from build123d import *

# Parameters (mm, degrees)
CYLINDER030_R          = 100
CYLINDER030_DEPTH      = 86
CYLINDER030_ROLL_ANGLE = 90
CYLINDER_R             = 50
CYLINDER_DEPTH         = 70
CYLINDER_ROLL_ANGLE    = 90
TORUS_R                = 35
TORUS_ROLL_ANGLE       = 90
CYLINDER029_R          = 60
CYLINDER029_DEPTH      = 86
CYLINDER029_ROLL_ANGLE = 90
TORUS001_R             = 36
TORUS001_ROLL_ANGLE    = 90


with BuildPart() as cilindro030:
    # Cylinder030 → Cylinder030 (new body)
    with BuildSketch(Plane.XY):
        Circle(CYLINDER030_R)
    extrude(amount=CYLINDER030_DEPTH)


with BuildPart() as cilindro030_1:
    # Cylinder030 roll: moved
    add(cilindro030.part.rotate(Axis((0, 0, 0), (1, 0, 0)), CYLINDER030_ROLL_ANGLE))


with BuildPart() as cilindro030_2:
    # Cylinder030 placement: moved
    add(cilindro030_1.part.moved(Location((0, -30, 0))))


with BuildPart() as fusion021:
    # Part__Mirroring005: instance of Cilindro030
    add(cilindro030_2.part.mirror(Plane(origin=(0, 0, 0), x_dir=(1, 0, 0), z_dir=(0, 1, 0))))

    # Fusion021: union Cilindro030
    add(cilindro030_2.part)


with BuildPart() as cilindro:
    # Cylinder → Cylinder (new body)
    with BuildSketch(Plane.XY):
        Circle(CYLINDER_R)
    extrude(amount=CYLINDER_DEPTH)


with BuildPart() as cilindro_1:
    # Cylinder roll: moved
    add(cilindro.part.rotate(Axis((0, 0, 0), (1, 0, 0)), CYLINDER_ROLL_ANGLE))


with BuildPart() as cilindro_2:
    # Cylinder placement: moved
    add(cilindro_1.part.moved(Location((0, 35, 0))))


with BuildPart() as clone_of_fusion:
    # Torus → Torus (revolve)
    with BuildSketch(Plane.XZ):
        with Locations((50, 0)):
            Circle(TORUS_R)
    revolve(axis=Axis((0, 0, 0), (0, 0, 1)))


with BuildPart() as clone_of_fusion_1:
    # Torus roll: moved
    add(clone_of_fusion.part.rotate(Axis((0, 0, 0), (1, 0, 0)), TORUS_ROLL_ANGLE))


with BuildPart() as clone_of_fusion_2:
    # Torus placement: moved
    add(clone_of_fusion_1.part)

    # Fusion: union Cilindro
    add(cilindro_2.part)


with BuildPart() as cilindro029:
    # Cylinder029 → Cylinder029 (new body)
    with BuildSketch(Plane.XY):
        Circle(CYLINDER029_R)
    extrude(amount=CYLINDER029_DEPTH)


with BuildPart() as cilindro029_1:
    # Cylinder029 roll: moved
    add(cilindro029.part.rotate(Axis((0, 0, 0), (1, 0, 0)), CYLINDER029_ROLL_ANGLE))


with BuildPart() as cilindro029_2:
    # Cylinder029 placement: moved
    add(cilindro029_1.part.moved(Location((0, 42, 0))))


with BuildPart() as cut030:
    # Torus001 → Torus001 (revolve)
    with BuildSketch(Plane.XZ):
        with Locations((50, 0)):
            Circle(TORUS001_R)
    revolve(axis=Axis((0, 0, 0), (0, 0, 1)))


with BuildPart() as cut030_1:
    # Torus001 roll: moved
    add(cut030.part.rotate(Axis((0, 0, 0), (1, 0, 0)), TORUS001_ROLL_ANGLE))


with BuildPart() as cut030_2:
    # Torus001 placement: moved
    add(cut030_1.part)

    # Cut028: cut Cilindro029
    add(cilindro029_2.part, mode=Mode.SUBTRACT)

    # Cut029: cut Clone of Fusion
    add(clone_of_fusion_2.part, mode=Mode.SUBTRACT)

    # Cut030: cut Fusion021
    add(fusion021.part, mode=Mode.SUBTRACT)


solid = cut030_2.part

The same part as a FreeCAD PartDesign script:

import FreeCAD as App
import Part
import Sketcher

doc = App.newDocument("Part")
params = doc.addObject("Spreadsheet::Sheet", "Params")
for row, (alias, value) in enumerate([
    ("sketch1_diameter", "200 mm"),
    ("pad1_length", "86 mm"),
    ("sketch2_diameter", "100 mm"),
    ("pad2_length", "70 mm"),
    ("sketch3_diameter", "70 mm"),
    ("revolution_angle", "360 deg"),
    ("sketch4_diameter", "120 mm"),
    ("pad3_length", "86 mm"),
    ("sketch5_diameter", "72 mm"),
    ("revolution2_angle", "360 deg"),
], start=1):
    params.set(f"A{row}", alias)
    params.set(f"B{row}", "=" + value)
    params.setAlias(f"B{row}", alias)

body = doc.addObject("PartDesign::Body", "Body")

# Sketch on XY plane
sketch1 = body.newObject("Sketcher::SketchObject", "Sketch")
sketch1.AttachmentSupport = (doc.getObject("XY_Plane"), [""])
sketch1.MapMode = "FlatFace"
sketch1.addGeometry(Part.Circle(App.Vector(0, 0, 0), App.Vector(0, 0, 1), 100), False)
sketch1.addConstraint([
    Sketcher.Constraint("Coincident", 0, 3, -1, 1),
    Sketcher.Constraint("Diameter", 0, 200.0),
])
sketch1.setExpression("Constraints[1]", "Params.sketch1_diameter")
pad1 = body.newObject("PartDesign::Pad", "Pad")
pad1.Profile = sketch1
pad1.setExpression("Length", "Params.pad1_length")
body2 = doc.addObject("PartDesign::Body", "Body001")
doc.recompute()

body.Placement = App.Placement(App.Vector(0, 0, 0), App.Rotation(App.Vector(1, 0, 0), 90))
boolean = body2.newObject("PartDesign::Boolean", "Boolean")
boolean.Type = "Fuse"
boolean.addObjects([body])
body3 = doc.addObject("PartDesign::Body", "Body002")
doc.recompute()

body2.Placement = App.Placement(App.Vector(0, -30, 0), App.Rotation(App.Vector(0, 0, 1), 0))
boolean2 = body3.newObject("PartDesign::Boolean", "Boolean001")
boolean2.Type = "Fuse"
boolean2.addObjects([body2])
body4 = doc.addObject("PartDesign::Body", "Body003")
body4.AllowCompound = True
doc.recompute()

mirroring = doc.addObject("Part::Mirroring", "Mirroring")
mirroring.Source = body3
mirroring.Base = App.Vector(0, 0, 0)
mirroring.Normal = App.Vector(0, 1, 0)
body4.BaseFeature = mirroring
doc.recompute()

boolean3 = body4.newObject("PartDesign::Boolean", "Boolean002")
boolean3.Type = "Fuse"
boolean3.addObjects([body3])
body5 = doc.addObject("PartDesign::Body", "Body004")

# Sketch on XY plane
sketch2 = body5.newObject("Sketcher::SketchObject", "Sketch001")
sketch2.AttachmentSupport = (doc.getObject("XY_Plane004"), [""])
sketch2.MapMode = "FlatFace"
sketch2.addGeometry(Part.Circle(App.Vector(0, 0, 0), App.Vector(0, 0, 1), 50), False)
sketch2.addConstraint([
    Sketcher.Constraint("Coincident", 0, 3, -1, 1),
    Sketcher.Constraint("Diameter", 0, 100.0),
])
sketch2.setExpression("Constraints[1]", "Params.sketch2_diameter")
pad2 = body5.newObject("PartDesign::Pad", "Pad001")
pad2.Profile = sketch2
pad2.setExpression("Length", "Params.pad2_length")
body6 = doc.addObject("PartDesign::Body", "Body005")
doc.recompute()

body5.Placement = App.Placement(App.Vector(0, 0, 0), App.Rotation(App.Vector(1, 0, 0), 90))
boolean4 = body6.newObject("PartDesign::Boolean", "Boolean003")
boolean4.Type = "Fuse"
boolean4.addObjects([body5])
body7 = doc.addObject("PartDesign::Body", "Body006")
doc.recompute()

body6.Placement = App.Placement(App.Vector(0, 35, 0), App.Rotation(App.Vector(0, 0, 1), 0))
boolean5 = body7.newObject("PartDesign::Boolean", "Boolean004")
boolean5.Type = "Fuse"
boolean5.addObjects([body6])
body8 = doc.addObject("PartDesign::Body", "Body007")

# Sketch on XZ plane
sketch3 = body8.newObject("Sketcher::SketchObject", "Sketch002")
sketch3.AttachmentSupport = (doc.getObject("XZ_Plane007"), [""])
sketch3.MapMode = "FlatFace"
sketch3.addGeometry(Part.Circle(App.Vector(50, 0, 0), App.Vector(0, 0, 1), 35), False)
sketch3.addConstraint([
    Sketcher.Constraint("PointOnObject", 0, 3, -1),
    Sketcher.Constraint("Diameter", 0, 70.0),
    Sketcher.Constraint("DistanceX", -1, 1, 0, 3, 50.0),
])
sketch3.setExpression("Constraints[1]", "Params.sketch3_diameter")
revolution = body8.newObject("PartDesign::Revolution", "Revolution")
revolution.Profile = sketch3
revolution.ReferenceAxis = (sketch3, ["V_Axis"])
revolution.setExpression("Angle", "Params.revolution_angle")
body9 = doc.addObject("PartDesign::Body", "Body008")
doc.recompute()

body8.Placement = App.Placement(App.Vector(0, 0, 0), App.Rotation(App.Vector(1, 0, 0), 90))
boolean6 = body9.newObject("PartDesign::Boolean", "Boolean005")
boolean6.Type = "Fuse"
boolean6.addObjects([body8])
doc.recompute()

boolean7 = body9.newObject("PartDesign::Boolean", "Boolean006")
boolean7.Type = "Fuse"
boolean7.addObjects([body7])
body10 = doc.addObject("PartDesign::Body", "Body009")

# Sketch on XY plane
sketch4 = body10.newObject("Sketcher::SketchObject", "Sketch003")
sketch4.AttachmentSupport = (doc.getObject("XY_Plane009"), [""])
sketch4.MapMode = "FlatFace"
sketch4.addGeometry(Part.Circle(App.Vector(0, 0, 0), App.Vector(0, 0, 1), 60), False)
sketch4.addConstraint([
    Sketcher.Constraint("Coincident", 0, 3, -1, 1),
    Sketcher.Constraint("Diameter", 0, 120.0),
])
sketch4.setExpression("Constraints[1]", "Params.sketch4_diameter")
pad3 = body10.newObject("PartDesign::Pad", "Pad002")
pad3.Profile = sketch4
pad3.setExpression("Length", "Params.pad3_length")
body11 = doc.addObject("PartDesign::Body", "Body010")
doc.recompute()

body10.Placement = App.Placement(App.Vector(0, 0, 0), App.Rotation(App.Vector(1, 0, 0), 90))
boolean8 = body11.newObject("PartDesign::Boolean", "Boolean007")
boolean8.Type = "Fuse"
boolean8.addObjects([body10])
body12 = doc.addObject("PartDesign::Body", "Body011")
doc.recompute()

body11.Placement = App.Placement(App.Vector(0, 42, 0), App.Rotation(App.Vector(0, 0, 1), 0))
boolean9 = body12.newObject("PartDesign::Boolean", "Boolean008")
boolean9.Type = "Fuse"
boolean9.addObjects([body11])
body13 = doc.addObject("PartDesign::Body", "Body012")

# Sketch on XZ plane
sketch5 = body13.newObject("Sketcher::SketchObject", "Sketch004")
sketch5.AttachmentSupport = (doc.getObject("XZ_Plane012"), [""])
sketch5.MapMode = "FlatFace"
sketch5.addGeometry(Part.Circle(App.Vector(50, 0, 0), App.Vector(0, 0, 1), 36), False)
sketch5.addConstraint([
    Sketcher.Constraint("PointOnObject", 0, 3, -1),
    Sketcher.Constraint("Diameter", 0, 72.0),
    Sketcher.Constraint("DistanceX", -1, 1, 0, 3, 50.0),
])
sketch5.setExpression("Constraints[1]", "Params.sketch5_diameter")
revolution2 = body13.newObject("PartDesign::Revolution", "Revolution001")
revolution2.Profile = sketch5
revolution2.ReferenceAxis = (sketch5, ["V_Axis"])
revolution2.setExpression("Angle", "Params.revolution2_angle")
body14 = doc.addObject("PartDesign::Body", "Body013")
doc.recompute()

body13.Placement = App.Placement(App.Vector(0, 0, 0), App.Rotation(App.Vector(1, 0, 0), 90))
boolean10 = body14.newObject("PartDesign::Boolean", "Boolean009")
boolean10.Type = "Fuse"
boolean10.addObjects([body13])
doc.recompute()

boolean11 = body14.newObject("PartDesign::Boolean", "Boolean010")
boolean11.Type = "Cut"
boolean11.addObjects([body12])
doc.recompute()

boolean12 = body14.newObject("PartDesign::Boolean", "Boolean011")
boolean12.Type = "Cut"
boolean12.addObjects([body9])
doc.recompute()

boolean13 = body14.newObject("PartDesign::Boolean", "Boolean012")
boolean13.Type = "Cut"
boolean13.addObjects([body4])
mirroring.Visibility = False

doc.recompute()
